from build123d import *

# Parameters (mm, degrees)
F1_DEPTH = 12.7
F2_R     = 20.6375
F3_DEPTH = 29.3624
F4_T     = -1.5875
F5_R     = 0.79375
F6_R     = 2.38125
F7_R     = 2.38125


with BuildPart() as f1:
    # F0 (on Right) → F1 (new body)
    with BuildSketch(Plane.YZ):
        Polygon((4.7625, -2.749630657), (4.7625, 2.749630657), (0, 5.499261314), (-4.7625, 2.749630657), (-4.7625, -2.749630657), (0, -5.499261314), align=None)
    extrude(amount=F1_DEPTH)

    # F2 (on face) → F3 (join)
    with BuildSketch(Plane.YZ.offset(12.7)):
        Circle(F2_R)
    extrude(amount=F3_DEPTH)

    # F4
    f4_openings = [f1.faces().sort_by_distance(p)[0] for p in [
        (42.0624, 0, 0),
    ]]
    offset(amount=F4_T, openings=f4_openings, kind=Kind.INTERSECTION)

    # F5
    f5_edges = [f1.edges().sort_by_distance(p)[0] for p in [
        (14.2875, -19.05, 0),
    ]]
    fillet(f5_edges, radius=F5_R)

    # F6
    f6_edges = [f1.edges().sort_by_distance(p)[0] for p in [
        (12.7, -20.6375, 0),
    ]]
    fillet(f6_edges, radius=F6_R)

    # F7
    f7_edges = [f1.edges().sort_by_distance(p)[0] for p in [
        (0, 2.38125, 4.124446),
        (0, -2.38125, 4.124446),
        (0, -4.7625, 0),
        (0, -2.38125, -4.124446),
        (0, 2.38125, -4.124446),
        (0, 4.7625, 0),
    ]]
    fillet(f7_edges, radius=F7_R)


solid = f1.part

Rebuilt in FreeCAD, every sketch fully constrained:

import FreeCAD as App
import Part
import Sketcher
from FreeCAD import Vector
Q = App.Units.Quantity


def edges_at(feature, points):
    """Names of the edges that pass closest to the given points."""
    edges = feature.Shape.Edges
    near = lambda p: min(range(len(edges)), key=lambda i: edges[i].distToShape(Part.Vertex(*p))[0])
    return sorted({f"Edge{near(p) + 1}" for p in points})


def faces_at(feature, points):
    """Names of the faces that lie closest to the given points."""
    faces = feature.Shape.Faces
    near = lambda p: min(range(len(faces)), key=lambda i: faces[i].distToShape(Part.Vertex(*p))[0])
    return sorted({f"Face{near(p) + 1}" for p in points})

doc = App.newDocument("Part")
body = doc.addObject("PartDesign::Body", "Body")

# Sketch on YZ plane
sketch1 = body.newObject("Sketcher::SketchObject", "Sketch")
sketch1.AttachmentSupport = (doc.getObject("YZ_Plane"), [""])
sketch1.MapMode = "FlatFace"
sketch1.addGeometry(Part.LineSegment(Vector(5, -3, 0), Vector(5, 3, 0)), False)
sketch1.addGeometry(Part.LineSegment(Vector(5, 3, 0), Vector(0, 5, 0)), False)
sketch1.addGeometry(Part.LineSegment(Vector(0, 5, 0), Vector(-5, 3, 0)), False)
sketch1.addGeometry(Part.LineSegment(Vector(-5, 3, 0), Vector(-5, -3, 0)), False)
sketch1.addGeometry(Part.LineSegment(Vector(-5, -3, 0), Vector(0, -5, 0)), False)
sketch1.addGeometry(Part.LineSegment(Vector(0, -5, 0), Vector(5, -3, 0)), False)
sketch1.addConstraint(Sketcher.Constraint("Coincident", 0, 2, 1, 1))
sketch1.addConstraint(Sketcher.Constraint("Coincident", 1, 2, 2, 1))
sketch1.addConstraint(Sketcher.Constraint("Coincident", 2, 2, 3, 1))
sketch1.addConstraint(Sketcher.Constraint("Coincident", 3, 2, 4, 1))
sketch1.addConstraint(Sketcher.Constraint("Coincident", 4, 2, 5, 1))
sketch1.addConstraint(Sketcher.Constraint("Coincident", 5, 2, 0, 1))
sketch1.addConstraint(Sketcher.Constraint("Vertical", 0))
sketch1.addConstraint(Sketcher.Constraint("Vertical", 3))
sketch1.addConstraint(Sketcher.Constraint("Symmetric", 0, 2, 3, 2, -1, 1))
sketch1.addConstraint(Sketcher.Constraint("Symmetric", 1, 2, 4, 2, -1, 1))
sketch1.addConstraint(Sketcher.Constraint("PointOnObject", 1, 2, -2))
sketch1.addConstraint(Sketcher.Constraint("Parallel", 2, 5))
sketch1.addConstraint(Sketcher.Constraint("Horizontal", 0, 2, 2, 2))
sketch1.addConstraint(Sketcher.Constraint("Angle", 1, Q("150 deg")))
sketch1.addConstraint(Sketcher.Constraint("DistanceX", -1, 1, 0, 2, Q("0.1875 in")))
sketch1.addConstraint(Sketcher.Constraint("DistanceY", 0, 1, 0, 2, Q("5.499261 mm")))
pad1 = body.newObject("PartDesign::Pad", "Pad")
pad1.Profile = sketch1
pad1.Length = Q("0.5 in")

# Sketch on YZ plane
sketch2 = body.newObject("Sketcher::SketchObject", "Sketch001")
sketch2.AttachmentSupport = (doc.getObject("YZ_Plane"), [""])
sketch2.MapMode = "FlatFace"
sketch2.AttachmentOffset = App.Placement(Vector(0, 0, 0.5 * 25.4), App.Rotation())
sketch2.addGeometry(Part.Circle(Vector(0, 0, 0), Vector(0, 0, 1), 21), False)
sketch2.addConstraint(Sketcher.Constraint("Coincident", 0, 3, -1, 1))
sketch2.addConstraint(Sketcher.Constraint("Diameter", 0, Q("1.625 in")))
pad2 = body.newObject("PartDesign::Pad", "Pad001")
pad2.Profile = sketch2
pad2.Length = Q("1.156 in")
doc.recompute()

thickness = body.newObject("PartDesign::Thickness", "Thickness")
thickness.Base = (pad2, faces_at(pad2, [(42.062, 0, 0)]))
thickness.Value = Q("0.0625 in")
thickness.Reversed = True
thickness.Join = "Intersection"
doc.recompute()

fillet = body.newObject("PartDesign::Fillet", "Fillet")
fillet.Base = (thickness, edges_at(thickness, [(14.287, -19.05, 0)]))
fillet.Radius = Q("0.03125 in")
doc.recompute()

fillet2 = body.newObject("PartDesign::Fillet", "Fillet001")
fillet2.Base = (fillet, edges_at(fillet, [(12.7, -20.637, 0)]))
fillet2.Radius = Q("0.09375 in")
doc.recompute()

fillet3 = body.newObject("PartDesign::Fillet", "Fillet002")
fillet3.Base = (fillet2, edges_at(fillet2, [
    (0, 2.381, 4.124),
    (0, -2.381, 4.124),
    (0, -4.763, 0),
    (0, -2.381, -4.124),
    (0, 2.381, -4.124),
    (0, 4.763, 0),
]))
fillet3.Radius = Q("0.09375 in")

doc.recompute()
